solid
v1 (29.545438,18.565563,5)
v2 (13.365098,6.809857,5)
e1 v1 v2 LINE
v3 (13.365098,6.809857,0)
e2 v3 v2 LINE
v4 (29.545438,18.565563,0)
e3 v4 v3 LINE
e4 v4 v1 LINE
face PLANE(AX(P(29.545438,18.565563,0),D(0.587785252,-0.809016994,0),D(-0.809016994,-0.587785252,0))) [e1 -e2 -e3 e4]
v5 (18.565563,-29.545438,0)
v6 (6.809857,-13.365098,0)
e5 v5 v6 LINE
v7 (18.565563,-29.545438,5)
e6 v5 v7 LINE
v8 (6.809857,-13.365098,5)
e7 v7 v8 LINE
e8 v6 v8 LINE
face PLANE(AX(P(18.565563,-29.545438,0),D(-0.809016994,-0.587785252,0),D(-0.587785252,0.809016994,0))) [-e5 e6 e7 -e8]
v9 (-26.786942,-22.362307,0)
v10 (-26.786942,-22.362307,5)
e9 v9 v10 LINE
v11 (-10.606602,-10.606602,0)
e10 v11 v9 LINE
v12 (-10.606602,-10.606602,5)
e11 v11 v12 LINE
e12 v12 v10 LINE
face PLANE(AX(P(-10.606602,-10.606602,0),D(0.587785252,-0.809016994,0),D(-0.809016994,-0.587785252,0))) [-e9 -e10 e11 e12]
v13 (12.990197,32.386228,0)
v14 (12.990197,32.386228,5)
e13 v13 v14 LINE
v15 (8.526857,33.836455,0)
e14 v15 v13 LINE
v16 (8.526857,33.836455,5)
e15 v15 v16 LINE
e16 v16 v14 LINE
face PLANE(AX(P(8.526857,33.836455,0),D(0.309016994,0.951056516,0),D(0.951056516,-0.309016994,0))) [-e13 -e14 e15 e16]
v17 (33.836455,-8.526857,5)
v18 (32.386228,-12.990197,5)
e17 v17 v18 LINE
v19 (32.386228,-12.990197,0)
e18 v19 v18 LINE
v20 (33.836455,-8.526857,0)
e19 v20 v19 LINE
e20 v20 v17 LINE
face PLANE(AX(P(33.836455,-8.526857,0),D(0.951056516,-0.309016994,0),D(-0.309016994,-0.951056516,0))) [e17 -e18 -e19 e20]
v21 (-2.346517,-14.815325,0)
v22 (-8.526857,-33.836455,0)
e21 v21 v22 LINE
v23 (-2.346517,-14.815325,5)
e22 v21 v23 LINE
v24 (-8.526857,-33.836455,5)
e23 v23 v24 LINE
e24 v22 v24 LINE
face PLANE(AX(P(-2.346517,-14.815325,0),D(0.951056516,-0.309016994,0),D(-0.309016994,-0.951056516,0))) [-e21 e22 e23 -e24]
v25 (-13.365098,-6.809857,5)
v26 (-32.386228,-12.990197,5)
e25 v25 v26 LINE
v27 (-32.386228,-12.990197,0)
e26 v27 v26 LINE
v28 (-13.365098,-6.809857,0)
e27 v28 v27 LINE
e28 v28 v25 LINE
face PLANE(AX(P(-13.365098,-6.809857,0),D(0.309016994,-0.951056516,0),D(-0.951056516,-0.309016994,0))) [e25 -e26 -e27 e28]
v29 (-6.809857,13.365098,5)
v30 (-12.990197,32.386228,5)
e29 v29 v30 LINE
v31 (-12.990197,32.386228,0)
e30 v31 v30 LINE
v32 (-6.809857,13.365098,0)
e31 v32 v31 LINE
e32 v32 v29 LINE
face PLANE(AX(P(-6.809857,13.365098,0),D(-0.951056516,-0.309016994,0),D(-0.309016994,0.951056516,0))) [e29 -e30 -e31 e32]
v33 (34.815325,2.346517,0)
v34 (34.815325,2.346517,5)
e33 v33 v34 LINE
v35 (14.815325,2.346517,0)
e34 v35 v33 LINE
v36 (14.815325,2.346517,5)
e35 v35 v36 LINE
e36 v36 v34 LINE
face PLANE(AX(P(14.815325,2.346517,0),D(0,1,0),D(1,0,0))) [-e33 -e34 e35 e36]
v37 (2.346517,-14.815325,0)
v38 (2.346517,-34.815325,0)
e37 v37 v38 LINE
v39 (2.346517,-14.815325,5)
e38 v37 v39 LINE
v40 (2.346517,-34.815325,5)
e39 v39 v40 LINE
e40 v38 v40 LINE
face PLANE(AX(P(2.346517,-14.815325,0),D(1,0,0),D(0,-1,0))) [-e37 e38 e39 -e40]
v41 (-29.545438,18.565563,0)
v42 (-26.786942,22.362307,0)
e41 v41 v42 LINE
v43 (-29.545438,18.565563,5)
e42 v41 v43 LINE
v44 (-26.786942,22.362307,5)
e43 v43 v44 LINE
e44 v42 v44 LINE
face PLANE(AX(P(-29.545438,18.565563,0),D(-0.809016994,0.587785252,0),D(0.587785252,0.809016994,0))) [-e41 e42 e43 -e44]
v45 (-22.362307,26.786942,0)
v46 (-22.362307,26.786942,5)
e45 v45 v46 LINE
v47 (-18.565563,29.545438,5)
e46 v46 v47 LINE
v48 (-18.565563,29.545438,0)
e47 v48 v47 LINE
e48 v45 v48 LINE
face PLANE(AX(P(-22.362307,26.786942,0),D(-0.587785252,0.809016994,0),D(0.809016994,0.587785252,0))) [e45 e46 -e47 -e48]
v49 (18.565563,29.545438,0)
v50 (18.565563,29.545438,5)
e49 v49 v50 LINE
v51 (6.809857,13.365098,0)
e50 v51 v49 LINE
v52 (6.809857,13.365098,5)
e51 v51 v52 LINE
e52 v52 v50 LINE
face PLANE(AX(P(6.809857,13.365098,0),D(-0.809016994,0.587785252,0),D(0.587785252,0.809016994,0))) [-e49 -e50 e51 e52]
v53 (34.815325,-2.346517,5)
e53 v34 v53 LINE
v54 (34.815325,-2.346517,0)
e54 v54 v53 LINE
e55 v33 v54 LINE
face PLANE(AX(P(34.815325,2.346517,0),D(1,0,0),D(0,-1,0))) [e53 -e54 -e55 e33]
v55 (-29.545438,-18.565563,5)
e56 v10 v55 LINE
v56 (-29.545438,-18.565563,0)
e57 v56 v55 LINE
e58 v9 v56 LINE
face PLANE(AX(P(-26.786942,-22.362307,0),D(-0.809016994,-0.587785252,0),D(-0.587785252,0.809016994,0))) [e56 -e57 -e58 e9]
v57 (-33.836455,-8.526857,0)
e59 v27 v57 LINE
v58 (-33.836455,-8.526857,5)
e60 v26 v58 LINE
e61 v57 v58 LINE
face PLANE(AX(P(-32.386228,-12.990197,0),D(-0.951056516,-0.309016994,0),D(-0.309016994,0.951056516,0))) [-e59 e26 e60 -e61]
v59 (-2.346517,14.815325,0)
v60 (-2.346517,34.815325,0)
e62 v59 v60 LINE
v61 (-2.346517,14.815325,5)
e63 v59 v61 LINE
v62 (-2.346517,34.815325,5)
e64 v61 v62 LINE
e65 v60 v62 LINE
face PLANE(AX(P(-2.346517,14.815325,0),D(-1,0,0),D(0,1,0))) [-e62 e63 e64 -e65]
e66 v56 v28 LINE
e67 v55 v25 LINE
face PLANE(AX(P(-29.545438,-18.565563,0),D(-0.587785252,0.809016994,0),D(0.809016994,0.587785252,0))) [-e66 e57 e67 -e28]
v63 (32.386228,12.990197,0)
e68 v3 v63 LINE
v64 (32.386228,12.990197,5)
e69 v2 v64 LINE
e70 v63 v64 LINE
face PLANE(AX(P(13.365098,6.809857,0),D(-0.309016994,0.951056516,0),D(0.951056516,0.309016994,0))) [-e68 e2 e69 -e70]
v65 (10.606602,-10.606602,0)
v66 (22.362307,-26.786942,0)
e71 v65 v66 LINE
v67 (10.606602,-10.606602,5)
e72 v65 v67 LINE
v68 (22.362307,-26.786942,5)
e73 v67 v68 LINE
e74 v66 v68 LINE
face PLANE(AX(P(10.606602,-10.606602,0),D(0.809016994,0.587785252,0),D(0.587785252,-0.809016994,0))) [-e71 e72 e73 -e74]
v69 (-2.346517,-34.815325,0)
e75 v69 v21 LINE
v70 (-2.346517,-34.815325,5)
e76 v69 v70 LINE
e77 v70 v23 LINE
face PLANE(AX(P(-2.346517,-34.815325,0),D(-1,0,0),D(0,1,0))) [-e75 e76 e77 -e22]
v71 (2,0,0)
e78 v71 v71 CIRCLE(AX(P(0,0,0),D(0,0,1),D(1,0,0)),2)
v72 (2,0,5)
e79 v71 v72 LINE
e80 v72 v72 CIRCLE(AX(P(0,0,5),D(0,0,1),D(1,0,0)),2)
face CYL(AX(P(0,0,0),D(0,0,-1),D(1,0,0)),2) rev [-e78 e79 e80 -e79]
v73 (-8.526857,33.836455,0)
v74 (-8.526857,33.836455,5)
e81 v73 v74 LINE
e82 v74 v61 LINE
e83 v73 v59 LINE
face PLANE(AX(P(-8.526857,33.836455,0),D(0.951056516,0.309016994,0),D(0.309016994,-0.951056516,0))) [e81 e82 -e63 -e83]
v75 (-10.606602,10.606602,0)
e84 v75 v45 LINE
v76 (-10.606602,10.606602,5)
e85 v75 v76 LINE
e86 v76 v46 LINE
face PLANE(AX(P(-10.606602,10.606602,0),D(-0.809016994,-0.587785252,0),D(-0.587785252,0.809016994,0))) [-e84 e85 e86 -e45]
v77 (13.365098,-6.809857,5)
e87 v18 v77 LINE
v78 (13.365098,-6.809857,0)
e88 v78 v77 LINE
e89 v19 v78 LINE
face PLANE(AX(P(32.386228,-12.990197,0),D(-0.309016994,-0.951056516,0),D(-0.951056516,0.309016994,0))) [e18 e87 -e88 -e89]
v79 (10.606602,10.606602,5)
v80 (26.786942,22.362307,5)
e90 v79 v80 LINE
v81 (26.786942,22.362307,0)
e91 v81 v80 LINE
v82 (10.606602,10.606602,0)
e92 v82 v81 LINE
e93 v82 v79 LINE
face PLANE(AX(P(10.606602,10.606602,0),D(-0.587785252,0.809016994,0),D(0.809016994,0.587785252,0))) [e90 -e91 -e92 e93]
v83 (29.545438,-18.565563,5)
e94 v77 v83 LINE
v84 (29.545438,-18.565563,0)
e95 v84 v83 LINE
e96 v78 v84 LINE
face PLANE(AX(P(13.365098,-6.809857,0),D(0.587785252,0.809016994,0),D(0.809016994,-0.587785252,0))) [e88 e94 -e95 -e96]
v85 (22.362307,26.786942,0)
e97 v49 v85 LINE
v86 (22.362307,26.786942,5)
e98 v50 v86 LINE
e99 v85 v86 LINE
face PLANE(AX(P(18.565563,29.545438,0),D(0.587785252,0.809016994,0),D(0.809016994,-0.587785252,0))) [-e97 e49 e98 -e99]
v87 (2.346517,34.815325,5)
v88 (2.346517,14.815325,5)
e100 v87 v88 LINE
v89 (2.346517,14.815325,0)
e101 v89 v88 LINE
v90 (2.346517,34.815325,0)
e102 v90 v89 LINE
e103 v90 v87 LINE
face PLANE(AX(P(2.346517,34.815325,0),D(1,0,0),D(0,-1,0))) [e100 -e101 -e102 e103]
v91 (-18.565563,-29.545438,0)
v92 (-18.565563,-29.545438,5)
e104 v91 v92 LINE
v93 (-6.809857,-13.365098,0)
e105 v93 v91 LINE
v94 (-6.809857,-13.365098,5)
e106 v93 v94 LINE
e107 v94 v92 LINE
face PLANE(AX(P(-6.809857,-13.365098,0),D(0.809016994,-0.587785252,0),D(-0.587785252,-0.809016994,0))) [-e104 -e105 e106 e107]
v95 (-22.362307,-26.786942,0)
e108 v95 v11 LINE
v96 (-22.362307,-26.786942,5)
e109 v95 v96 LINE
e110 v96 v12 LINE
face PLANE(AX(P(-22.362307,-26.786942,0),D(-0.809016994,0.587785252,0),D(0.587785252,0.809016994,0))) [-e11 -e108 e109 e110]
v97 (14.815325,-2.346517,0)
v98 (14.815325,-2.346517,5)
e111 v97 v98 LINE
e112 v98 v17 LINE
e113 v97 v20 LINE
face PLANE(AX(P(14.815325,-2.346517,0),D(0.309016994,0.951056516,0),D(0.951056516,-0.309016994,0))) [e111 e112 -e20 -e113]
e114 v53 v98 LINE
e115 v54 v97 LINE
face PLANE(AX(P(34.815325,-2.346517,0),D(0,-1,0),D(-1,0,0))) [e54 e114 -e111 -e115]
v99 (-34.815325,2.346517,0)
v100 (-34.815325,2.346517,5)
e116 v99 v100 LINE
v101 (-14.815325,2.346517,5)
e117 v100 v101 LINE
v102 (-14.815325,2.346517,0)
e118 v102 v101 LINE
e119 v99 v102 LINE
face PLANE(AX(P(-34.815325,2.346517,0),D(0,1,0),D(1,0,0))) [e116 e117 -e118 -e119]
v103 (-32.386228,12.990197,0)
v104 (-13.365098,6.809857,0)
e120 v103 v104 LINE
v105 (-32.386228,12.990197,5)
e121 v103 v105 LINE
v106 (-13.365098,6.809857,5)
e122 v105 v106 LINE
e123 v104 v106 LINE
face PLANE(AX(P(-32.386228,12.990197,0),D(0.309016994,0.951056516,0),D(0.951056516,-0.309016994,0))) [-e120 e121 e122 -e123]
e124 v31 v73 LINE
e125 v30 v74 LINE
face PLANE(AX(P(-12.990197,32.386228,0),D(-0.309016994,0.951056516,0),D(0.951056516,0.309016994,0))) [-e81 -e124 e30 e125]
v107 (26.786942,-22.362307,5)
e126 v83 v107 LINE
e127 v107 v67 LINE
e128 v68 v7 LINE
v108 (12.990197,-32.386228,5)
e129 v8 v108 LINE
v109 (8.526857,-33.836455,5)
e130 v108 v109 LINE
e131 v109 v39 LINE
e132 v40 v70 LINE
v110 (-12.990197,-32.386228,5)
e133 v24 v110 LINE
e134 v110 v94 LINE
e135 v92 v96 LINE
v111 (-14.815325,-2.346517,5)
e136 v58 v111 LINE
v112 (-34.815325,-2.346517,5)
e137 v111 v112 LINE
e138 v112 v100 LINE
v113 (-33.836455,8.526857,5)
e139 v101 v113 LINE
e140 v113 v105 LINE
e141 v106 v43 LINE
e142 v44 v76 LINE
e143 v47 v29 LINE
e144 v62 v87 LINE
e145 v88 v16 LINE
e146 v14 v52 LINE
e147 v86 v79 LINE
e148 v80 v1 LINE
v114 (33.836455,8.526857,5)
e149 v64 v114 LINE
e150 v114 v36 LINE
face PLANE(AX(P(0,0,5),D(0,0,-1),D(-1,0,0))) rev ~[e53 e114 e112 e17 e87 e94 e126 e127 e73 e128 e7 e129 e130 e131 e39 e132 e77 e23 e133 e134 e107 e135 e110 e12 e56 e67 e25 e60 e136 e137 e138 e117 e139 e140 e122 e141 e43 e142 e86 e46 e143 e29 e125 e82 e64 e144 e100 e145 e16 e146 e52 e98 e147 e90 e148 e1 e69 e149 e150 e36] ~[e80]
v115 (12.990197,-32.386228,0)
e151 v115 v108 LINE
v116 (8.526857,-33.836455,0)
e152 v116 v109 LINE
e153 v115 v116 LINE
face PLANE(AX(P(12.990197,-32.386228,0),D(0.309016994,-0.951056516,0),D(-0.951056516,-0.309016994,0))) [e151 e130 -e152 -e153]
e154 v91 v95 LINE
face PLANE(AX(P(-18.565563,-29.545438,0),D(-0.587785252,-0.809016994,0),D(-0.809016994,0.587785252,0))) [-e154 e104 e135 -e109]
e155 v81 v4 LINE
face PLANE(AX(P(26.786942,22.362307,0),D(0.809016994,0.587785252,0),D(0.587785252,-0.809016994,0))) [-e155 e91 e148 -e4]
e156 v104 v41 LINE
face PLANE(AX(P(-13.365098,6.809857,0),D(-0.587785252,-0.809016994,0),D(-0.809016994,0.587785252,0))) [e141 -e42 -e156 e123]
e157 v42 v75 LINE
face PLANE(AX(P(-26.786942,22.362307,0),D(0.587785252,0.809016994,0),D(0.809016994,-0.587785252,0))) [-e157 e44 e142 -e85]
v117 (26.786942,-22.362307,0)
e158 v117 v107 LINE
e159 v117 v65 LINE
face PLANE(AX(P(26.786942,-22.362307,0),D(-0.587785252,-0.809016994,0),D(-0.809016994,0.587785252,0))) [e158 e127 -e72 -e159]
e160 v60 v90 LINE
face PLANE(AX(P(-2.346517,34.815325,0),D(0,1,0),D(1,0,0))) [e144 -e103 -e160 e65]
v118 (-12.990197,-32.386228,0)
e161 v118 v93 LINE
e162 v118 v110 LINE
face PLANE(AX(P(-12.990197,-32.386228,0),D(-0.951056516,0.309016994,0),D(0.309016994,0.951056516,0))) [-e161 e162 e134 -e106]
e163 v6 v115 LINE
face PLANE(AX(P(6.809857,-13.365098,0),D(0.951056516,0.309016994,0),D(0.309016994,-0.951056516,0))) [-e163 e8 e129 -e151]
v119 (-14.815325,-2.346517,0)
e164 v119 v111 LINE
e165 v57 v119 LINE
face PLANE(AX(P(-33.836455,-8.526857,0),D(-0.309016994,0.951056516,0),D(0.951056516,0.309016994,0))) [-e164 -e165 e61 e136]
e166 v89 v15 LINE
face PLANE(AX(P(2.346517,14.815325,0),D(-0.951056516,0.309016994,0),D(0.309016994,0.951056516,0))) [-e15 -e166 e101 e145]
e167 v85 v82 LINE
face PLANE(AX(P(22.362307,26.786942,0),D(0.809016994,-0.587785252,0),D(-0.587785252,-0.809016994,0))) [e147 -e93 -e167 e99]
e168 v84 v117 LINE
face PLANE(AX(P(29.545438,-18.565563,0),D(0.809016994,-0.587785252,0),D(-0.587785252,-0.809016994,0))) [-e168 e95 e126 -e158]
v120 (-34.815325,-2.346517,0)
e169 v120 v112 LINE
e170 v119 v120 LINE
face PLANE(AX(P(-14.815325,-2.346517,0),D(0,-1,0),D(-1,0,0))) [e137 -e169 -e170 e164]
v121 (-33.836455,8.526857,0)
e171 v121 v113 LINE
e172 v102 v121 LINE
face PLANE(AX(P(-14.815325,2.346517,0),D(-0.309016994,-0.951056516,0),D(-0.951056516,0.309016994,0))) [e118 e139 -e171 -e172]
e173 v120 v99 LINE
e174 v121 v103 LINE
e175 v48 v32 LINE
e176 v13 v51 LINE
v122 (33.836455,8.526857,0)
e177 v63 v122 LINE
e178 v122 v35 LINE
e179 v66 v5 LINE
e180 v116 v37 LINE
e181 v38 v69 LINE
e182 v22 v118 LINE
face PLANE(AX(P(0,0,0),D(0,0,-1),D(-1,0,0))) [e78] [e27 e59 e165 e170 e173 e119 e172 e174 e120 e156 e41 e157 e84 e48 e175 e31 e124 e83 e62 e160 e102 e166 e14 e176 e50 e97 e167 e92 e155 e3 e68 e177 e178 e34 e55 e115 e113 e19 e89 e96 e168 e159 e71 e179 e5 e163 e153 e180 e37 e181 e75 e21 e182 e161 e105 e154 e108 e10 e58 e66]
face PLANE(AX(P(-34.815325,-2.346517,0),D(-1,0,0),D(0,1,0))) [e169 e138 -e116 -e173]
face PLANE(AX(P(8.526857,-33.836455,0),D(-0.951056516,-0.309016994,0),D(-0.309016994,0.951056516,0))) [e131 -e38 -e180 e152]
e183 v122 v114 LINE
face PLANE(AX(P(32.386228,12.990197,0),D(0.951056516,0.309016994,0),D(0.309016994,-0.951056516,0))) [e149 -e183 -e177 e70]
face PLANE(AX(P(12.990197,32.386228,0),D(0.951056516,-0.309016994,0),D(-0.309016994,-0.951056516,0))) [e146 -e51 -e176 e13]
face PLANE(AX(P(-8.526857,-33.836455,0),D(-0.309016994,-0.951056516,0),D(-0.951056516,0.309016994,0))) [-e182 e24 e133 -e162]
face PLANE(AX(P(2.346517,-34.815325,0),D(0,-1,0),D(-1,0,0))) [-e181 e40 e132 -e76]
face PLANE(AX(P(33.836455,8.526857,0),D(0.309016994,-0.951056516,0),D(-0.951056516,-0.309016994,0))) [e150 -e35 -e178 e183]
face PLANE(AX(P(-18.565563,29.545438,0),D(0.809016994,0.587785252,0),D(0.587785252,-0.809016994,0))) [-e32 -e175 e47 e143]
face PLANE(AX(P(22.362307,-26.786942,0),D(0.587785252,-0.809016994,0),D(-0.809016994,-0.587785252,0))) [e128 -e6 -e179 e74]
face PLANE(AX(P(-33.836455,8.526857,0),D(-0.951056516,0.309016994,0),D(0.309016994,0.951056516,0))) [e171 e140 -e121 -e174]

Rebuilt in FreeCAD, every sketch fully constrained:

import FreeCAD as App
import Part
import Sketcher

V = App.Vector
Q = App.Units.Quantity


def add_polygon(sketch, points):
    """Adds a closed chain of lines whose ends are joined by coincident constraints."""
    first, n = sketch.GeometryCount, len(points)
    for a, b in zip(points, points[1:] + points[:1]):
        sketch.addGeometry(Part.LineSegment(App.Vector(*a, 0), App.Vector(*b, 0)), False)
    for i in range(n):
        sketch.addConstraint(Sketcher.Constraint("Coincident", first + i, 2, first + (i + 1) % n, 1))

doc = App.newDocument("Part")
body = doc.addObject("PartDesign::Body", "Body")

# Sketch on XY plane
sketch1 = body.newObject("Sketcher::SketchObject", "Sketch")
sketch1.AttachmentSupport = (doc.getObject("XY_Plane"), [""])
sketch1.MapMode = "FlatFace"
add_polygon(sketch1, [(-34.8, -2.3), (-14.8, -2.3), (-33.8, -8.5), (-32.4, -13), (-13.4, -6.8), (-29.5, -18.6), (-26.8, -22.4), (-10.6, -10.6), (-22.4, -26.8), (-18.6, -29.5), (-6.8, -13.4), (-13, -32.4), (-8.5, -33.8), (-2.3, -14.8), (-2.3, -34.8), (2.3, -34.8), (2.3, -14.8), (8.5, -33.8), (13, -32.4), (6.8, -13.4), (18.6, -29.5), (22.4, -26.8), (10.6, -10.6), (26.8, -22.4), (29.5, -18.6), (13.4, -6.8), (32.4, -13), (33.8, -8.5), (14.8, -2.3), (34.8, -2.3), (34.8, 2.3), (14.8, 2.3), (33.8, 8.5), (32.4, 13), (13.4, 6.8), (29.5, 18.6), (26.8, 22.4), (10.6, 10.6), (22.4, 26.8), (18.6, 29.5), (6.8, 13.4), (13, 32.4), (8.5, 33.8), (2.3, 14.8), (2.3, 34.8), (-2.3, 34.8), (-2.3, 14.8), (-8.5, 33.8), (-13, 32.4), (-6.8, 13.4), (-18.6, 29.5), (-22.4, 26.8), (-10.6, 10.6), (-26.8, 22.4), (-29.5, 18.6), (-13.4, 6.8), (-32.4, 13), (-33.8, 8.5), (-14.8, 2.3), (-34.8, 2.3)])  # lines 0-59
sketch1.addGeometry(Part.Circle(V(0, 0, 0), V(0, 0, 1), 2), False)  # 60
sketch1.addConstraint([
    Sketcher.Constraint("Horizontal", 0),
    Sketcher.Constraint("Vertical", 13),
    Sketcher.Constraint("Horizontal", 14),
    Sketcher.Constraint("Vertical", 15),
    Sketcher.Constraint("Horizontal", 28),
    Sketcher.Constraint("Vertical", 29),
    Sketcher.Constraint("Horizontal", 30),
    Sketcher.Constraint("Vertical", 43),
    Sketcher.Constraint("Horizontal", 44),
    Sketcher.Constraint("Vertical", 45),
    Sketcher.Constraint("Horizontal", 58),
    Sketcher.Constraint("Vertical", 59),
    Sketcher.Constraint("Coincident", 60, 3, -1, 1),
    Sketcher.Constraint("Symmetric", 0, 2, 30, 2, -1, 1),
    Sketcher.Constraint("Symmetric", 1, 2, 31, 2, -1, 1),
    Sketcher.Constraint("Symmetric", 2, 2, 32, 2, -1, 1),
    Sketcher.Constraint("Symmetric", 3, 2, 33, 2, -1, 1),
    Sketcher.Constraint("Symmetric", 4, 2, 34, 2, -1, 1),
    Sketcher.Constraint("Symmetric", 5, 2, 35, 2, -1, 1),
    Sketcher.Constraint("Symmetric", 6, 2, 36, 2, -1, 1),
    Sketcher.Constraint("Symmetric", 7, 2, 37, 2, -1, 1),
    Sketcher.Constraint("Symmetric", 8, 2, 38, 2, -1, 1),
    Sketcher.Constraint("Symmetric", 9, 2, 39, 2, -1, 1),
    Sketcher.Constraint("Symmetric", 10, 2, 40, 2, -1, 1),
    Sketcher.Constraint("Symmetric", 11, 2, 41, 2, -1, 1),
    Sketcher.Constraint("Symmetric", 12, 2, 42, 2, -1, 1),
    Sketcher.Constraint("Symmetric", 14, 2, 44, 2, -1, 1),
    Sketcher.Constraint("Symmetric", 16, 2, 46, 2, -1, 1),
    Sketcher.Constraint("Symmetric", 17, 2, 47, 2, -1, 1),
    Sketcher.Constraint("Symmetric", 18, 2, 48, 2, -1, 1),
    Sketcher.Constraint("Symmetric", 19, 2, 49, 2, -1, 1),
    Sketcher.Constraint("Symmetric", 20, 2, 50, 2, -1, 1),
    Sketcher.Constraint("Symmetric", 21, 2, 51, 2, -1, 1),
    Sketcher.Constraint("Symmetric", 22, 2, 52, 2, -1, 1),
    Sketcher.Constraint("Symmetric", 23, 2, 53, 2, -1, 1),
    Sketcher.Constraint("Symmetric", 24, 2, 54, 2, -1, 1),
    Sketcher.Constraint("Symmetric", 25, 2, 55, 2, -1, 1),
    Sketcher.Constraint("Symmetric", 26, 2, 56, 2, -1, 1),
    Sketcher.Constraint("Symmetric", 27, 2, 57, 2, -1, 1),
    Sketcher.Constraint("Symmetric", 12, 2, 15, 2, -2),
    Sketcher.Constraint("Symmetric", 11, 2, 16, 2, -2),
    Sketcher.Constraint("Symmetric", 10, 2, 17, 2, -2),
    Sketcher.Constraint("Symmetric", 9, 2, 18, 2, -2),
    Sketcher.Constraint("Symmetric", 8, 2, 19, 2, -2),
    Sketcher.Constraint("Symmetric", 7, 2, 20, 2, -2),
    Sketcher.Constraint("Symmetric", 6, 2, 21, 2, -2),
    Sketcher.Constraint("Symmetric", 5, 2, 22, 2, -2),
    Sketcher.Constraint("Symmetric", 4, 2, 23, 2, -2),
    Sketcher.Constraint("Symmetric", 3, 2, 24, 2, -2),
    Sketcher.Constraint("Symmetric", 2, 2, 25, 2, -2),
    Sketcher.Constraint("Symmetric", 1, 2, 26, 2, -2),
    Sketcher.Constraint("Symmetric", 0, 2, 27, 2, -2),
    Sketcher.Constraint("Perpendicular", 1, 2),
    Sketcher.Constraint("Perpendicular", 2, 3),
    Sketcher.Constraint("Perpendicular", 4, 5),
    Sketcher.Constraint("Perpendicular", 5, 6),
    Sketcher.Constraint("Perpendicular", 7, 8),
    Sketcher.Constraint("Perpendicular", 8, 9),
    Sketcher.Constraint("Perpendicular", 10, 11),
    Sketcher.Constraint("Perpendicular", 11, 12),
    Sketcher.Constraint("Perpendicular", 3, 16),
    Sketcher.Constraint("Perpendicular", 6, 19),
    Sketcher.Constraint("Perpendicular", 33, 46),
    Sketcher.Constraint("Equal", 0, 28),
    Sketcher.Constraint("Equal", 58, 13),
    Sketcher.Constraint("Equal", 44, 29),
    Sketcher.Constraint("Equal", 1, 3),
    Sketcher.Constraint("Equal", 3, 4),
    Sketcher.Constraint("Equal", 2, 5),
    Sketcher.Constraint("Equal", 4, 6),
    Sketcher.Constraint("Equal", 6, 7),
    Sketcher.Constraint("Equal", 5, 8),
    Sketcher.Constraint("Equal", 7, 9),
    Sketcher.Constraint("Equal", 9, 10),
    Sketcher.Constraint("Equal", 8, 11),
    Sketcher.Constraint("Equal", 10, 12),
    Sketcher.Constraint("Diameter", 60, 4.0),
    Sketcher.Constraint("DistanceX", 0, 1, 0, 2, 20.0),
    Sketcher.Constraint("Angle", 1, Q("-162 deg")),
    Sketcher.Constraint("Angle", 4, Q("-144 deg")),
    Sketcher.Constraint("Distance", 1, 20.0),
    Sketcher.Constraint("DistanceX", 6, 2, -1, 1, 10.606602),
    Sketcher.Constraint("DistanceX", 14, 1, 14, 2, 4.693034),
])
pad1 = body.newObject("PartDesign::Pad", "Pad")
pad1.Profile = sketch1
pad1.Length = 5

doc.recompute()
